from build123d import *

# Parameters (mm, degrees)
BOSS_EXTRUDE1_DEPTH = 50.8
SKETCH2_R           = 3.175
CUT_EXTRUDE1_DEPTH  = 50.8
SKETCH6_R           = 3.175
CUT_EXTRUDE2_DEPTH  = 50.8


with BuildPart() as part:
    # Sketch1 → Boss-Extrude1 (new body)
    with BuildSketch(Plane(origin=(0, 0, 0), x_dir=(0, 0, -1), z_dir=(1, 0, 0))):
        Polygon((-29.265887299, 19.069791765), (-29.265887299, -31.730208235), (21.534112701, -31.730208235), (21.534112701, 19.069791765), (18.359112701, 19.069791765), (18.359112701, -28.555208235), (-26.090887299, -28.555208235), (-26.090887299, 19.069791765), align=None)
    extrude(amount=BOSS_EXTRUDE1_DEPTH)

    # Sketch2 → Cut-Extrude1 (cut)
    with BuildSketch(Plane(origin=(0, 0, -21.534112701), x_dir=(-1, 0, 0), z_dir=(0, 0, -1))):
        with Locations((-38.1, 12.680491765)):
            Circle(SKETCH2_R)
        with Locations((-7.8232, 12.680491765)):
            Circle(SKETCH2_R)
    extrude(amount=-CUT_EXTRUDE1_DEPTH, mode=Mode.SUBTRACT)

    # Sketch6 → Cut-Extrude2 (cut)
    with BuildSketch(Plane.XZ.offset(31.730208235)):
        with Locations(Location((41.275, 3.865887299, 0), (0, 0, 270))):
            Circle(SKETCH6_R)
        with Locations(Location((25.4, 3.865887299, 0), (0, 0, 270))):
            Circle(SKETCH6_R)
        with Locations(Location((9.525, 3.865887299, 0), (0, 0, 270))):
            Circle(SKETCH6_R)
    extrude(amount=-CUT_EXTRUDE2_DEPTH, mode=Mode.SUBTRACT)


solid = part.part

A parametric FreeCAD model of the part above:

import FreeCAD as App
import Part
import Sketcher
from FreeCAD import Vector
Q = App.Units.Quantity


def add_polygon(sketch, points):
    """Adds a closed chain of lines whose ends are joined by coincident constraints."""
    first, n = sketch.GeometryCount, len(points)
    for a, b in zip(points, points[1:] + points[:1]):
        sketch.addGeometry(Part.LineSegment(App.Vector(*a, 0), App.Vector(*b, 0)), False)
    for i in range(n):
        sketch.addConstraint(Sketcher.Constraint("Coincident", first + i, 2, first + (i + 1) % n, 1))

doc = App.newDocument("Part")
body = doc.addObject("PartDesign::Body", "Body")

sketch1 = doc.addObject("Sketcher::SketchObject", "Sketch")
body.addObject(sketch1)
sketch1.AttachmentSupport = (doc.YZ_Plane, [""])
sketch1.MapMode = "FlatFace"
add_polygon(sketch1, [(19.1, 29.3), (-31.7, 29.3), (-31.7, -21.5), (19.1, -21.5), (19.1, -18.4), (-28.6, -18.4), (-28.6, 26.1), (19.1, 26.1)])
sketch1.addConstraint([
    Sketcher.Constraint("Horizontal", 0),
    Sketcher.Constraint("Vertical", 1),
    Sketcher.Constraint("Horizontal", 2),
    Sketcher.Constraint("Vertical", 3),
    Sketcher.Constraint("Horizontal", 4),
    Sketcher.Constraint("Vertical", 5),
    Sketcher.Constraint("Horizontal", 6),
    Sketcher.Constraint("Vertical", 7),
    Sketcher.Constraint("Vertical", 3, 2, 6, 2),
    Sketcher.Constraint("Equal", 2, 1),
    Sketcher.Constraint("Equal", 3, 7),
    Sketcher.Constraint("DistanceX", 0, 2, 0, 1, Q("2 in")),
    Sketcher.Constraint("DistanceY", 5, 1, 5, 2, Q("1.75 in")),
    Sketcher.Constraint("DistanceX", 4, 2, 4, 1, Q("1.875 in")),
    Sketcher.Constraint("DistanceX", 0, 2, -1, 1, 31.730208),
    Sketcher.Constraint("DistanceY", -1, 1, 0, 2, 29.265887),
])
pad1 = doc.addObject("PartDesign::Pad", "Pad")
body.addObject(pad1)
pad1.Profile = sketch1
pad1.Length = Q("2 in")

sketch2 = doc.addObject("Sketcher::SketchObject", "Sketch001")
body.addObject(sketch2)
sketch2.AttachmentSupport = (doc.XY_Plane, [""])
sketch2.MapMode = "FlatFace"
sketch2.AttachmentOffset = App.Placement(Vector(0, 0, -21.534113), App.Rotation())
sketch2.addGeometry([
    Part.Circle(Vector(38.1, 12.7, 0), Vector(0, 0, 1), 3.2),
    Part.Circle(Vector(7.8, 12.7, 0), Vector(0, 0, 1), 3.2),
], False)
sketch2.addConstraint([
    Sketcher.Constraint("Equal", 0, 1),
    Sketcher.Constraint("Horizontal", 0, 3, 1, 3),
    Sketcher.Constraint("Diameter", 0, Q("0.25 in")),
    Sketcher.Constraint("DistanceX", -1, 1, 0, 3, Q("1.5 in")),
    Sketcher.Constraint("DistanceX", -1, 1, 1, 3, Q("0.308 in")),
    Sketcher.Constraint("DistanceY", -1, 1, 0, 3, 12.680492),
])
pocket1 = doc.addObject("PartDesign::Pocket", "Pocket")
body.addObject(pocket1)
pocket1.Profile = sketch2
pocket1.Length = Q("2 in")
pocket1.Reversed = True

sketch3 = doc.addObject("Sketcher::SketchObject", "Sketch002")
body.addObject(sketch3)
sketch3.AttachmentSupport = (doc.XZ_Plane, [""])
sketch3.MapMode = "FlatFace"
sketch3.AttachmentOffset = App.Placement(Vector(0, 0, 31.730208), App.Rotation())
sketch3.addGeometry([
    Part.Circle(Vector(41.3, 3.9, 0), Vector(0, 0, 1), 3.2),
    Part.Circle(Vector(25.4, 3.9, 0), Vector(0, 0, 1), 3.2),
    Part.Circle(Vector(9.5, 3.9, 0), Vector(0, 0, 1), 3.2),
], False)
sketch3.addConstraint([
    Sketcher.Constraint("Equal", 0, 1),
    Sketcher.Constraint("Equal", 1, 2),
    Sketcher.Constraint("Horizontal", 0, 3, 1, 3),
    Sketcher.Constraint("Horizontal", 1, 3, 2, 3),
    Sketcher.Constraint("Diameter", 0, Q("0.25 in")),
    Sketcher.Constraint("DistanceX", -1, 1, 1, 3, Q("1 in")),
    Sketcher.Constraint("DistanceX", 2, 3, 0, 3, Q("1.25 in")),
    Sketcher.Constraint("DistanceX", -1, 1, 0, 3, Q("1.625 in")),
    Sketcher.Constraint("DistanceY", -1, 1, 0, 3, 3.865887),
])
pocket2 = doc.addObject("PartDesign::Pocket", "Pocket001")
body.addObject(pocket2)
pocket2.Profile = sketch3
pocket2.Length = Q("2 in")

doc.recompute()
